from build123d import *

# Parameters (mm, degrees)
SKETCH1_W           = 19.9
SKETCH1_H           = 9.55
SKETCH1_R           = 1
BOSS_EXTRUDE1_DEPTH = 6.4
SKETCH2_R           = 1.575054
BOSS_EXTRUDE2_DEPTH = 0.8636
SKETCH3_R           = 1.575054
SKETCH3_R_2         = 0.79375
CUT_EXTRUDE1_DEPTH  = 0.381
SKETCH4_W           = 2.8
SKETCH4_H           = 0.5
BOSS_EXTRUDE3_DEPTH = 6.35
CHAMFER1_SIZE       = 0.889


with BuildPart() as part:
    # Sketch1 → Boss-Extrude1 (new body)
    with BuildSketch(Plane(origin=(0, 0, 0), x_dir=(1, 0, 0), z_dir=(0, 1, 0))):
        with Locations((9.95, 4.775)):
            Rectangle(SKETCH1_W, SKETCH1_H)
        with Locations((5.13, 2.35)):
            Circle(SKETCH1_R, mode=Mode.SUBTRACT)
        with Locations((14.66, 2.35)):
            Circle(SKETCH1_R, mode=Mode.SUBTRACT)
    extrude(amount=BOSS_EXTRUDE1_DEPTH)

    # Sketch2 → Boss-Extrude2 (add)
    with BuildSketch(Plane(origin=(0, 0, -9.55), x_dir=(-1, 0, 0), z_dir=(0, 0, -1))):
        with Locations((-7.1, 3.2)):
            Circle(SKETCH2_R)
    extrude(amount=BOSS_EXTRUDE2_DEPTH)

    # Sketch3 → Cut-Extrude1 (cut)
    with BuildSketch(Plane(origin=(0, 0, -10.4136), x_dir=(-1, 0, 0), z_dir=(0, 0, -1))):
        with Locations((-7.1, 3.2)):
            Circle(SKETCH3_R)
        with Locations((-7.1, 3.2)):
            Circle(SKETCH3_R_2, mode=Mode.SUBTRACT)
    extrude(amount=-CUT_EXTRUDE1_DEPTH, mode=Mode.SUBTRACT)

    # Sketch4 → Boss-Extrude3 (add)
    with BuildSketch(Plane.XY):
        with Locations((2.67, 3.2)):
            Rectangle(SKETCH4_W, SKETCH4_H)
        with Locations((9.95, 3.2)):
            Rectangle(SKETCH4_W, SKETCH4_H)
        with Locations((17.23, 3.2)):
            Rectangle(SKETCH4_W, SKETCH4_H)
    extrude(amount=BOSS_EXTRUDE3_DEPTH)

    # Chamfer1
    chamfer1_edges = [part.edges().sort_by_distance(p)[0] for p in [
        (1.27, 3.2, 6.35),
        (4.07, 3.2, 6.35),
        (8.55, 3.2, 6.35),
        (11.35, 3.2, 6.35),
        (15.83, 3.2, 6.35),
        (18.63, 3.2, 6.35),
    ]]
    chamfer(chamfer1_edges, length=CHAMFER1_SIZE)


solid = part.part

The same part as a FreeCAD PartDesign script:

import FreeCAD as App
import Part
import Sketcher
Q = App.Units.Quantity


def edges_at(feature, points):
    """Names of the edges that pass closest to the given points."""
    edges = feature.Shape.Edges
    near = lambda p: min(range(len(edges)), key=lambda i: edges[i].distToShape(Part.Vertex(*p))[0])
    return sorted({f"Edge{near(p) + 1}" for p in points})

doc = App.newDocument("Part")
params = doc.addObject("Spreadsheet::Sheet", "Params")
for row, (alias, value) in enumerate([
    ("sketch1_diameter", "2 mm"),
    ("sketch1_width", "19.9 mm"),
    ("sketch1_height", "9.55 mm"),
    ("pad1_length", "6.4 mm"),
    ("pad2_length", "0.8636 mm"),
    ("pocket1_length", "0.381 mm"),
    ("sketch4_width", "2.8 mm"),
    ("sketch4_height", "0.5 mm"),
    ("pad3_length", "6.35 mm"),
    ("chamfer_size", "0.889 mm"),
], start=1):
    params.set(f"A{row}", alias)
    params.set(f"B{row}", "=" + value)
    params.setAlias(f"B{row}", alias)

body = doc.addObject("PartDesign::Body", "Body")

# Sketch on XZ plane
sketch1 = body.newObject("Sketcher::SketchObject", "Sketch")
sketch1.AttachmentSupport = (doc.getObject("XZ_Plane"), [""])
sketch1.MapMode = "FlatFace"
sketch1.addGeometry(Part.LineSegment(App.Vector(0, -9.6, 0), App.Vector(0, 0, 0)), False)
sketch1.addGeometry(Part.LineSegment(App.Vector(0, 0, 0), App.Vector(19.9, 0, 0)), False)
sketch1.addGeometry(Part.LineSegment(App.Vector(19.9, 0, 0), App.Vector(19.9, -9.6, 0)), False)
sketch1.addGeometry(Part.LineSegment(App.Vector(19.9, -9.6, 0), App.Vector(0, -9.6, 0)), False)
sketch1.addGeometry(Part.Circle(App.Vector(5.1, -2.4, 0), App.Vector(0, 0, 1), 1), False)
sketch1.addGeometry(Part.Circle(App.Vector(14.7, -2.4, 0), App.Vector(0, 0, 1), 1), False)
sketch1.addConstraint(Sketcher.Constraint("Coincident", 0, 2, 1, 1))
sketch1.addConstraint(Sketcher.Constraint("Coincident", 1, 2, 2, 1))
sketch1.addConstraint(Sketcher.Constraint("Coincident", 2, 2, 3, 1))
sketch1.addConstraint(Sketcher.Constraint("Coincident", 3, 2, 0, 1))
sketch1.addConstraint(Sketcher.Constraint("Vertical", 0))
sketch1.addConstraint(Sketcher.Constraint("Horizontal", 1))
sketch1.addConstraint(Sketcher.Constraint("Vertical", 2))
sketch1.addConstraint(Sketcher.Constraint("Horizontal", 3))
sketch1.addConstraint(Sketcher.Constraint("Coincident", 0, 2, -1, 1))
sketch1.addConstraint(Sketcher.Constraint("Equal", 4, 5))
sketch1.addConstraint(Sketcher.Constraint("Horizontal", 4, 3, 5, 3))
sketch1.addConstraint(Sketcher.Constraint("Diameter", 4, Q("2 mm")))
sketch1.addConstraint(Sketcher.Constraint("DistanceX", 1, 1, 1, 2, Q("19.9 mm")))
sketch1.addConstraint(Sketcher.Constraint("DistanceY", 0, 1, 0, 2, Q("9.55 mm")))
sketch1.addConstraint(Sketcher.Constraint("DistanceY", 2, 2, 5, 3, Q("7.2 mm")))
sketch1.addConstraint(Sketcher.Constraint("DistanceX", -1, 1, 4, 3, Q("5.13 mm")))
sketch1.addConstraint(Sketcher.Constraint("DistanceX", -1, 1, 5, 3, Q("14.66 mm")))
sketch1.setExpression("Constraints[11]", "Params.sketch1_diameter")
sketch1.setExpression("Constraints[12]", "Params.sketch1_width")
sketch1.setExpression("Constraints[13]", "Params.sketch1_height")
pad1 = body.newObject("PartDesign::Pad", "Pad")
pad1.Profile = sketch1
pad1.setExpression("Length", "Params.pad1_length")
pad1.Reversed = True

# Sketch on XY plane
sketch2 = body.newObject("Sketcher::SketchObject", "Sketch001")
sketch2.AttachmentSupport = (doc.getObject("XY_Plane"), [""])
sketch2.MapMode = "FlatFace"
sketch2.AttachmentOffset = App.Placement(App.Vector(0, 0, -9.55), App.Rotation())
sketch2.addGeometry(Part.Circle(App.Vector(7.1, 3.2, 0), App.Vector(0, 0, 1), 1.6), False)
sketch2.addConstraint(Sketcher.Constraint("DistanceX", -1, 1, 0, 3, Q("7.1 mm")))
sketch2.addConstraint(Sketcher.Constraint("DistanceY", -1, 1, 0, 3, Q("3.2 mm")))
sketch2.addConstraint(Sketcher.Constraint("Diameter", 0, Q("3.150108 mm")))
pad2 = body.newObject("PartDesign::Pad", "Pad001")
pad2.Profile = sketch2
pad2.setExpression("Length", "Params.pad2_length")
pad2.Reversed = True

# Sketch on XY plane
sketch3 = body.newObject("Sketcher::SketchObject", "Sketch002")
sketch3.AttachmentSupport = (doc.getObject("XY_Plane"), [""])
sketch3.MapMode = "FlatFace"
sketch3.AttachmentOffset = App.Placement(App.Vector(0, 0, -10.4136), App.Rotation())
sketch3.addGeometry(Part.Circle(App.Vector(7.1, 3.2, 0), App.Vector(0, 0, 1), 1.6), False)
sketch3.addGeometry(Part.Circle(App.Vector(7.1, 3.2, 0), App.Vector(0, 0, 1), 0.8), False)
sketch3.addConstraint(Sketcher.Constraint("Coincident", 1, 3, 0, 3))
sketch3.addConstraint(Sketcher.Constraint("Diameter", 1, Q("1.5875 mm")))
sketch3.addConstraint(Sketcher.Constraint("DistanceX", -1, 1, 0, 3, Q("7.1 mm")))
sketch3.addConstraint(Sketcher.Constraint("DistanceY", -1, 1, 0, 3, Q("3.2 mm")))
sketch3.addConstraint(Sketcher.Constraint("Diameter", 0, Q("3.150108 mm")))
pocket1 = body.newObject("PartDesign::Pocket", "Pocket")
pocket1.Profile = sketch3
pocket1.setExpression("Length", "Params.pocket1_length")
pocket1.Reversed = True

# Sketch on XY plane
sketch4 = body.newObject("Sketcher::SketchObject", "Sketch003")
sketch4.AttachmentSupport = (doc.getObject("XY_Plane"), [""])
sketch4.MapMode = "FlatFace"
sketch4.addGeometry(Part.LineSegment(App.Vector(1.3, 3.5, 0), App.Vector(1.3, 3, 0)), False)
sketch4.addGeometry(Part.LineSegment(App.Vector(1.3, 3, 0), App.Vector(4.1, 3, 0)), False)
sketch4.addGeometry(Part.LineSegment(App.Vector(4.1, 3, 0), App.Vector(4.1, 3.5, 0)), False)
sketch4.addGeometry(Part.LineSegment(App.Vector(4.1, 3.5, 0), App.Vector(1.3, 3.5, 0)), False)
sketch4.addGeometry(Part.LineSegment(App.Vector(8.6, 3.5, 0), App.Vector(8.6, 3, 0)), False)
sketch4.addGeometry(Part.LineSegment(App.Vector(8.6, 3, 0), App.Vector(11.3, 3, 0)), False)
sketch4.addGeometry(Part.LineSegment(App.Vector(11.3, 3, 0), App.Vector(11.3, 3.5, 0)), False)
sketch4.addGeometry(Part.LineSegment(App.Vector(11.3, 3.5, 0), App.Vector(8.6, 3.5, 0)), False)
sketch4.addGeometry(Part.LineSegment(App.Vector(15.8, 3.5, 0), App.Vector(15.8, 3, 0)), False)
sketch4.addGeometry(Part.LineSegment(App.Vector(15.8, 3, 0), App.Vector(18.6, 3, 0)), False)
sketch4.addGeometry(Part.LineSegment(App.Vector(18.6, 3, 0), App.Vector(18.6, 3.5, 0)), False)
sketch4.addGeometry(Part.LineSegment(App.Vector(18.6, 3.5, 0), App.Vector(15.8, 3.5, 0)), False)
sketch4.addConstraint(Sketcher.Constraint("Coincident", 0, 2, 1, 1))
sketch4.addConstraint(Sketcher.Constraint("Coincident", 1, 2, 2, 1))
sketch4.addConstraint(Sketcher.Constraint("Coincident", 2, 2, 3, 1))
sketch4.addConstraint(Sketcher.Constraint("Coincident", 3, 2, 0, 1))
sketch4.addConstraint(Sketcher.Constraint("Coincident", 4, 2, 5, 1))
sketch4.addConstraint(Sketcher.Constraint("Coincident", 5, 2, 6, 1))
sketch4.addConstraint(Sketcher.Constraint("Coincident", 6, 2, 7, 1))
sketch4.addConstraint(Sketcher.Constraint("Coincident", 7, 2, 4, 1))
sketch4.addConstraint(Sketcher.Constraint("Coincident", 8, 2, 9, 1))
sketch4.addConstraint(Sketcher.Constraint("Coincident", 9, 2, 10, 1))
sketch4.addConstraint(Sketcher.Constraint("Coincident", 10, 2, 11, 1))
sketch4.addConstraint(Sketcher.Constraint("Coincident", 11, 2, 8, 1))
sketch4.addConstraint(Sketcher.Constraint("Vertical", 0))
sketch4.addConstraint(Sketcher.Constraint("Horizontal", 1))
sketch4.addConstraint(Sketcher.Constraint("Vertical", 2))
sketch4.addConstraint(Sketcher.Constraint("Horizontal", 3))
sketch4.addConstraint(Sketcher.Constraint("Vertical", 4))
sketch4.addConstraint(Sketcher.Constraint("Horizontal", 5))
sketch4.addConstraint(Sketcher.Constraint("Vertical", 6))
sketch4.addConstraint(Sketcher.Constraint("Horizontal", 7))
sketch4.addConstraint(Sketcher.Constraint("Vertical", 8))
sketch4.addConstraint(Sketcher.Constraint("Horizontal", 9))
sketch4.addConstraint(Sketcher.Constraint("Vertical", 10))
sketch4.addConstraint(Sketcher.Constraint("Horizontal", 11))
sketch4.addConstraint(Sketcher.Constraint("Horizontal", 1, 2, 4, 2))
sketch4.addConstraint(Sketcher.Constraint("Horizontal", 3, 2, 6, 2))
sketch4.addConstraint(Sketcher.Constraint("Horizontal", 5, 2, 8, 2))
sketch4.addConstraint(Sketcher.Constraint("Horizontal", 7, 2, 10, 2))
sketch4.addConstraint(Sketcher.Constraint("Equal", 3, 5))
sketch4.addConstraint(Sketcher.Constraint("Equal", 7, 9))
sketch4.addConstraint(Sketcher.Constraint("DistanceX", 1, 1, 1, 2, Q("2.8 mm")))
sketch4.addConstraint(Sketcher.Constraint("DistanceY", 0, 2, 0, 1, Q("0.5 mm")))
sketch4.addConstraint(Sketcher.Constraint("DistanceX", -1, 1, 0, 2, Q("1.27 mm")))
sketch4.addConstraint(Sketcher.Constraint("DistanceY", -1, 1, 0, 2, Q("2.95 mm")))
sketch4.addConstraint(Sketcher.Constraint("DistanceX", -1, 1, 4, 2, Q("8.55 mm")))
sketch4.addConstraint(Sketcher.Constraint("DistanceX", -1, 1, 8, 2, Q("15.83 mm")))
sketch4.setExpression("Constraints[30]", "Params.sketch4_width")
sketch4.setExpression("Constraints[31]", "Params.sketch4_height")
pad3 = body.newObject("PartDesign::Pad", "Pad002")
pad3.Profile = sketch4
pad3.setExpression("Length", "Params.pad3_length")
doc.recompute()

chamfer = body.newObject("PartDesign::Chamfer", "Chamfer")
chamfer.Base = (pad3, edges_at(pad3, [
    (1.27, 3.2, 6.35),
    (4.07, 3.2, 6.35),
    (8.55, 3.2, 6.35),
    (11.35, 3.2, 6.35),
    (15.83, 3.2, 6.35),
    (18.63, 3.2, 6.35),
]))
chamfer.setExpression("Size", "Params.chamfer_size")

doc.recompute()
